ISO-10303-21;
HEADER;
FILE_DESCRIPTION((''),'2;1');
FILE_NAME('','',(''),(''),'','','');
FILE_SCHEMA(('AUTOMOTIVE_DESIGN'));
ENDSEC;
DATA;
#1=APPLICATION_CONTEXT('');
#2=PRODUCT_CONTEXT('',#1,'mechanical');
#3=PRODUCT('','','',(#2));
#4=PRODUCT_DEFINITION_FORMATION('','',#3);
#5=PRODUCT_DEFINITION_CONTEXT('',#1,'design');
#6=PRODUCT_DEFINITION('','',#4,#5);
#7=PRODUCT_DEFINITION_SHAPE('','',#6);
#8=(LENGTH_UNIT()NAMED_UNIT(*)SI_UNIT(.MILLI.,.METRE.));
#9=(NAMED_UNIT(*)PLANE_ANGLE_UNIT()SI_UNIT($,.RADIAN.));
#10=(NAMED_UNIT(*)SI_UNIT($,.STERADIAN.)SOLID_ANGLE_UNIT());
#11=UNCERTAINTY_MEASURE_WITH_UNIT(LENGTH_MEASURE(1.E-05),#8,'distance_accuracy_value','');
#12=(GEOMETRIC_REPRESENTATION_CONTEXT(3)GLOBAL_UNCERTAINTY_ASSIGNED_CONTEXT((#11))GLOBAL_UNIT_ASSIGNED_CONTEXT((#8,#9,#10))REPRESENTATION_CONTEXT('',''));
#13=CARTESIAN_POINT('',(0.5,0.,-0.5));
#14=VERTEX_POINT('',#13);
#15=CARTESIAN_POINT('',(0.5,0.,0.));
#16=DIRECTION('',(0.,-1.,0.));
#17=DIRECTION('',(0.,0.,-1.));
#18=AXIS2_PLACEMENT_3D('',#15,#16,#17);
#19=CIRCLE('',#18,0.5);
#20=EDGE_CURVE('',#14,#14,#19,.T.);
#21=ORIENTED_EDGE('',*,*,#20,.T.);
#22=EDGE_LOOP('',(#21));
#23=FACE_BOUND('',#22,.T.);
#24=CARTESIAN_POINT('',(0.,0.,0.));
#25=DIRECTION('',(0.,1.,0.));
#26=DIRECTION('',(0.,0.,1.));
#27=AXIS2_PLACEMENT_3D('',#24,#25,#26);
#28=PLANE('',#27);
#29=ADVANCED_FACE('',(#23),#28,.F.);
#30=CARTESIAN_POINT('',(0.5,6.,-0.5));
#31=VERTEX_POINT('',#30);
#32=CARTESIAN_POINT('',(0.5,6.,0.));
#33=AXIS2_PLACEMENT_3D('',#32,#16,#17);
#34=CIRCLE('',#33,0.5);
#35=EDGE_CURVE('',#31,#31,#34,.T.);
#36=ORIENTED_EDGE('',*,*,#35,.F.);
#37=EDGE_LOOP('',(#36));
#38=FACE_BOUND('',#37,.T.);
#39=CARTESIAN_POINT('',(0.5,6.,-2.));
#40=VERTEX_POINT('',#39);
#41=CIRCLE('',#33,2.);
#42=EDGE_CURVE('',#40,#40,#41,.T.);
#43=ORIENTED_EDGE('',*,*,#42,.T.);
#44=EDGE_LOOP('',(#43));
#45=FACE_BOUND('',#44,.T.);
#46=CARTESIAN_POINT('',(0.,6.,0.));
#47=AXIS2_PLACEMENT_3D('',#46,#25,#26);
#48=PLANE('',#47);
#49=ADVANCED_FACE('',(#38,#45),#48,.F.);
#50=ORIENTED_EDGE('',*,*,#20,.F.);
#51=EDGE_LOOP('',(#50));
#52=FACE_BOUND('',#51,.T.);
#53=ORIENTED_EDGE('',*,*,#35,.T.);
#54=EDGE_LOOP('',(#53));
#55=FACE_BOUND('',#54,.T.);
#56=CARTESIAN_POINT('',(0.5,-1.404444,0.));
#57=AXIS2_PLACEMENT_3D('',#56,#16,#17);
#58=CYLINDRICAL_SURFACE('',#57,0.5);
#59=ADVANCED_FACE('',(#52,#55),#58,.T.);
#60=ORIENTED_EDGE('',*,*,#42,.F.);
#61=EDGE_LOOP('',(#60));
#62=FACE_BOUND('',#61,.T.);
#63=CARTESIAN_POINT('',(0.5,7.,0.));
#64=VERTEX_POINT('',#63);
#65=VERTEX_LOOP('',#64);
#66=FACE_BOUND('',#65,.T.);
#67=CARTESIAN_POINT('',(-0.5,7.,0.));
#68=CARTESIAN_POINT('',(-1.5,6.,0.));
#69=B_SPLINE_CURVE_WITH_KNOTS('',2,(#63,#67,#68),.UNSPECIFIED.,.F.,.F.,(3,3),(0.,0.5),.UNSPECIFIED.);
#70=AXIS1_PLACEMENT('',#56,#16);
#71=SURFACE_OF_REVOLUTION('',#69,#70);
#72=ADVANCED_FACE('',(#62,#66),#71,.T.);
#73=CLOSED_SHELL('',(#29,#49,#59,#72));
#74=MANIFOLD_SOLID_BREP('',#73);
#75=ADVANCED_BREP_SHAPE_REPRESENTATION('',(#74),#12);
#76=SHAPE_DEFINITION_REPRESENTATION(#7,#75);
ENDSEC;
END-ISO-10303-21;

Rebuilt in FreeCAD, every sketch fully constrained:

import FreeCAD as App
import Part
import Sketcher

doc = App.newDocument("Part")
body = doc.addObject("PartDesign::Body", "Body")

# Sketch on XY plane
sketch1 = body.newObject("Sketcher::SketchObject", "Sketch")
sketch1.AttachmentSupport = (doc.getObject("XY_Plane"), [""])
sketch1.MapMode = "FlatFace"
sketch1.addGeometry([
    Part.LineSegment(App.Vector(0, 6, 0), App.Vector(0, 0, 0)),  # 0
    Part.LineSegment(App.Vector(0, 0, 0), App.Vector(0.5, 0, 0)),  # 1
    Part.LineSegment(App.Vector(0.5, 0, 0), App.Vector(0.5, 7, 0)),  # 2
    Part.BSplineCurve([App.Vector(-1.5, 6, 0), App.Vector(-0.5, 7, 0), App.Vector(0.5, 7, 0)], [3, 3], [0, 0.5], False, 2, [1, 1, 1], False),  # 3
    Part.LineSegment(App.Vector(-1.5, 6, 0), App.Vector(0, 6, 0)),  # 4
], False)
sketch1.addGeometry(Part.LineSegment(App.Vector(0.5, 0, 0), App.Vector(0.5, 7, 0)), True)  # axis
sketch1.addConstraint([
    Sketcher.Constraint("Block", 3),
    Sketcher.Constraint("Coincident", 0, 2, 1, 1),
    Sketcher.Constraint("Coincident", 1, 2, 2, 1),
    Sketcher.Constraint("Coincident", 2, 2, 3, 2),
    Sketcher.Constraint("Coincident", 3, 1, 4, 1),
    Sketcher.Constraint("Coincident", 4, 2, 0, 1),
    Sketcher.Constraint("Vertical", 0),
    Sketcher.Constraint("Horizontal", 1),
    Sketcher.Constraint("Vertical", 2),
    Sketcher.Constraint("Horizontal", 4),
    Sketcher.Constraint("Vertical", 5),
    Sketcher.Constraint("Coincident", 0, 2, -1, 1),
    Sketcher.Constraint("Coincident", 5, 1, 1, 2),
    Sketcher.Constraint("Equal", 2, 5),
])
revolution = body.newObject("PartDesign::Revolution", "Revolution")
revolution.Profile = sketch1
revolution.ReferenceAxis = (sketch1, ["Axis0"])
revolution.Angle = 360

doc.recompute()
